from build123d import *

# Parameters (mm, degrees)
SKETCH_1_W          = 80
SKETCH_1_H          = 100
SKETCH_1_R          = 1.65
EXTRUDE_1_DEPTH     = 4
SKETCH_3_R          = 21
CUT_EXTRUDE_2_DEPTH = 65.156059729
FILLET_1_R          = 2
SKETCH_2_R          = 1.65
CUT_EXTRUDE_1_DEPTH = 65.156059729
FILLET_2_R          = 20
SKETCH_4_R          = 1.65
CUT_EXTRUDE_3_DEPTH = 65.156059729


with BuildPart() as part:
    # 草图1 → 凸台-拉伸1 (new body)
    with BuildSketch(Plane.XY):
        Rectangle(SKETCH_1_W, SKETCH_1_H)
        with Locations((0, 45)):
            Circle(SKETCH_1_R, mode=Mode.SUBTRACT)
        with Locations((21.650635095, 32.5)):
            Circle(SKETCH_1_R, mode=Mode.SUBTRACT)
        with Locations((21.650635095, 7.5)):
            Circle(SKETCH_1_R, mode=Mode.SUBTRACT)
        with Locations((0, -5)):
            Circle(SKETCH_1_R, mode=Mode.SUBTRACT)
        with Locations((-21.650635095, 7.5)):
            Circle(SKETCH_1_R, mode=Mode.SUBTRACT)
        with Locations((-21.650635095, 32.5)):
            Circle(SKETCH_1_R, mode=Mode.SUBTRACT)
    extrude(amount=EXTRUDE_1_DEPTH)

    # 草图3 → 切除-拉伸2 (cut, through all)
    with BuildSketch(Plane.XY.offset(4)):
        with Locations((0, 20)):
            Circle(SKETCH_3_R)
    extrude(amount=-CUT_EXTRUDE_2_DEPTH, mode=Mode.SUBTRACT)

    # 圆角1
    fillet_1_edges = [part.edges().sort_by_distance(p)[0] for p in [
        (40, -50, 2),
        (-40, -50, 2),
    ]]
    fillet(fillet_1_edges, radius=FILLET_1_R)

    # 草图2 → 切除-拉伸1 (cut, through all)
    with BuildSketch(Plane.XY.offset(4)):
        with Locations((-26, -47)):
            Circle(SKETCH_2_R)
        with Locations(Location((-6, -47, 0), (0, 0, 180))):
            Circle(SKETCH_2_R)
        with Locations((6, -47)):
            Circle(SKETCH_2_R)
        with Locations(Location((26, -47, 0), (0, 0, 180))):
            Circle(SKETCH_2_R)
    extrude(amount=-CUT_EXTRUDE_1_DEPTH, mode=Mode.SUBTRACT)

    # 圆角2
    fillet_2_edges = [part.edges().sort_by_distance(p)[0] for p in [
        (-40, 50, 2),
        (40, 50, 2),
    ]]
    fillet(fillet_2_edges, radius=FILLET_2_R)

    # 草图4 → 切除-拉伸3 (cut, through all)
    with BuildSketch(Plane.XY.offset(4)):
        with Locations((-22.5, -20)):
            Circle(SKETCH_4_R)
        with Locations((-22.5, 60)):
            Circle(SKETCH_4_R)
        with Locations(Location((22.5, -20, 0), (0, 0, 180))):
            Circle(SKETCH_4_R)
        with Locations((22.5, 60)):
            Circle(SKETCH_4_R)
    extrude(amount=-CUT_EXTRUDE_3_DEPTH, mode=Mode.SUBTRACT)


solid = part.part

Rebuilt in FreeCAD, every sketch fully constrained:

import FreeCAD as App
import Part
import Sketcher

V = App.Vector
Q = App.Units.Quantity


def edges_at(feature, points):
    """Names of the edges that pass closest to the given points."""
    edges = feature.Shape.Edges
    near = lambda p: min(range(len(edges)), key=lambda i: edges[i].distToShape(Part.Vertex(*p))[0])
    return sorted({f"Edge{near(p) + 1}" for p in points})

doc = App.newDocument("Part")
body = doc.addObject("PartDesign::Body", "Body")

sketch1 = body.newObject("Sketcher::SketchObject", "Sketch")
sketch1.AttachmentSupport = (doc.getObject("XY_Plane"), [""])
sketch1.MapMode = "FlatFace"
sketch1.addGeometry([
    Part.LineSegment(V(-40, 50, 0), V(-40, -50, 0)),
    Part.LineSegment(V(-40, -50, 0), V(40, -50, 0)),
    Part.LineSegment(V(40, -50, 0), V(40, 50, 0)),
    Part.LineSegment(V(40, 50, 0), V(-40, 50, 0)),
    Part.Circle(V(-21.7, 7.5, 0), V(0, 0, 1), 1.6),
    Part.Circle(V(0, -5, 0), V(0, 0, 1), 1.6),
    Part.Circle(V(21.7, 7.5, 0), V(0, 0, 1), 1.6),
    Part.Circle(V(-21.7, 32.5, 0), V(0, 0, 1), 1.6),
    Part.Circle(V(21.7, 32.5, 0), V(0, 0, 1), 1.6),
    Part.Circle(V(0, 45, 0), V(0, 0, 1), 1.6),
], False)
sketch1.addConstraint([
    Sketcher.Constraint("Coincident", 0, 2, 1, 1),
    Sketcher.Constraint("Coincident", 1, 2, 2, 1),
    Sketcher.Constraint("Coincident", 2, 2, 3, 1),
    Sketcher.Constraint("Coincident", 3, 2, 0, 1),
    Sketcher.Constraint("Vertical", 0),
    Sketcher.Constraint("Horizontal", 1),
    Sketcher.Constraint("Vertical", 2),
    Sketcher.Constraint("Horizontal", 3),
    Sketcher.Constraint("Equal", 4, 5),
    Sketcher.Constraint("Equal", 5, 6),
    Sketcher.Constraint("Equal", 6, 7),
    Sketcher.Constraint("Equal", 7, 8),
    Sketcher.Constraint("Equal", 8, 9),
    Sketcher.Constraint("Symmetric", 0, 2, 2, 2, -1, 1),
    Sketcher.Constraint("Symmetric", 4, 3, 6, 3, -2),
    Sketcher.Constraint("Symmetric", 7, 3, 8, 3, -2),
    Sketcher.Constraint("PointOnObject", 5, 3, -2),
    Sketcher.Constraint("PointOnObject", 9, 3, -2),
    Sketcher.Constraint("Vertical", 4, 3, 7, 3),
    Sketcher.Constraint("Diameter", 4, Q("3.3 mm")),
    Sketcher.Constraint("DistanceX", 1, 1, 1, 2, Q("80 mm")),
    Sketcher.Constraint("DistanceY", 0, 2, 0, 1, Q("100 mm")),
    Sketcher.Constraint("DistanceY", 5, 3, -1, 1, Q("5 mm")),
    Sketcher.Constraint("DistanceY", -1, 1, 9, 3, Q("45 mm")),
    Sketcher.Constraint("DistanceY", 4, 3, 7, 3, Q("25 mm")),
    Sketcher.Constraint("DistanceY", -1, 1, 4, 3, Q("7.5 mm")),
    Sketcher.Constraint("DistanceX", 4, 3, 6, 3, Q("43.30127 mm")),
])
pad1 = body.newObject("PartDesign::Pad", "Pad")
pad1.Profile = sketch1
pad1.Length = 4

sketch2 = body.newObject("Sketcher::SketchObject", "Sketch001")
sketch2.AttachmentSupport = (doc.getObject("XY_Plane"), [""])
sketch2.MapMode = "FlatFace"
sketch2.AttachmentOffset = App.Placement(V(0, 0, 4), App.Rotation())
sketch2.addGeometry(Part.Circle(V(0, 20, 0), V(0, 0, 1), 21), False)
sketch2.addConstraint([
    Sketcher.Constraint("PointOnObject", 0, 3, -2),
    Sketcher.Constraint("Diameter", 0, Q("42 mm")),
    Sketcher.Constraint("DistanceY", -1, 1, 0, 3, Q("20 mm")),
])
pocket1 = body.newObject("PartDesign::Pocket", "Pocket")
pocket1.Profile = sketch2
pocket1.Type = "ThroughAll"
doc.recompute()

fillet = body.newObject("PartDesign::Fillet", "Fillet")
fillet.Base = (pocket1, edges_at(pocket1, [(40, -50, 2), (-40, -50, 2)]))
fillet.Radius = 2

sketch3 = body.newObject("Sketcher::SketchObject", "Sketch002")
sketch3.AttachmentSupport = (doc.getObject("XY_Plane"), [""])
sketch3.MapMode = "FlatFace"
sketch3.AttachmentOffset = App.Placement(V(0, 0, 4), App.Rotation())
sketch3.addGeometry([
    Part.Circle(V(-26, -47, 0), V(0, 0, 1), 1.6),
    Part.Circle(V(-6, -47, 0), V(0, 0, 1), 1.6),
    Part.Circle(V(6, -47, 0), V(0, 0, 1), 1.6),
    Part.Circle(V(26, -47, 0), V(0, 0, 1), 1.6),
], False)
sketch3.addConstraint([
    Sketcher.Constraint("Equal", 0, 1),
    Sketcher.Constraint("Equal", 1, 2),
    Sketcher.Constraint("Equal", 2, 3),
    Sketcher.Constraint("Symmetric", 1, 3, 2, 3, -2),
    Sketcher.Constraint("Symmetric", 0, 3, 3, 3, -2),
    Sketcher.Constraint("Horizontal", 0, 3, 1, 3),
    Sketcher.Constraint("Diameter", 0, Q("3.3 mm")),
    Sketcher.Constraint("DistanceX", 0, 3, -1, 1, Q("26 mm")),
    Sketcher.Constraint("DistanceY", 0, 3, -1, 1, Q("47 mm")),
    Sketcher.Constraint("DistanceX", 1, 3, -1, 1, Q("6 mm")),
])
pocket2 = body.newObject("PartDesign::Pocket", "Pocket001")
pocket2.Profile = sketch3
pocket2.Type = "ThroughAll"
doc.recompute()

fillet2 = body.newObject("PartDesign::Fillet", "Fillet001")
fillet2.Base = (pocket2, edges_at(pocket2, [(-40, 50, 2), (40, 50, 2)]))
fillet2.Radius = 20

sketch4 = body.newObject("Sketcher::SketchObject", "Sketch003")
sketch4.AttachmentSupport = (doc.getObject("XY_Plane"), [""])
sketch4.MapMode = "FlatFace"
sketch4.AttachmentOffset = App.Placement(V(0, 0, 4), App.Rotation())
sketch4.addGeometry([
    Part.Circle(V(-22.5, -20, 0), V(0, 0, 1), 1.6),
    Part.Circle(V(-22.5, 60, 0), V(0, 0, 1), 1.6),
    Part.Circle(V(22.5, -20, 0), V(0, 0, 1), 1.6),
    Part.Circle(V(22.5, 60, 0), V(0, 0, 1), 1.6),
], False)
sketch4.addConstraint([
    Sketcher.Constraint("Equal", 0, 1),
    Sketcher.Constraint("Equal", 1, 2),
    Sketcher.Constraint("Equal", 2, 3),
    Sketcher.Constraint("Symmetric", 0, 3, 2, 3, -2),
    Sketcher.Constraint("Symmetric", 1, 3, 3, 3, -2),
    Sketcher.Constraint("Vertical", 0, 3, 1, 3),
    Sketcher.Constraint("Diameter", 0, Q("3.3 mm")),
    Sketcher.Constraint("DistanceY", 0, 3, -1, 1, Q("20 mm")),
    Sketcher.Constraint("DistanceY", -1, 1, 1, 3, Q("60 mm")),
    Sketcher.Constraint("DistanceX", 0, 3, 2, 3, Q("45 mm")),
])
pocket3 = body.newObject("PartDesign::Pocket", "Pocket002")
pocket3.Profile = sketch4
pocket3.Type = "ThroughAll"

doc.recompute()
